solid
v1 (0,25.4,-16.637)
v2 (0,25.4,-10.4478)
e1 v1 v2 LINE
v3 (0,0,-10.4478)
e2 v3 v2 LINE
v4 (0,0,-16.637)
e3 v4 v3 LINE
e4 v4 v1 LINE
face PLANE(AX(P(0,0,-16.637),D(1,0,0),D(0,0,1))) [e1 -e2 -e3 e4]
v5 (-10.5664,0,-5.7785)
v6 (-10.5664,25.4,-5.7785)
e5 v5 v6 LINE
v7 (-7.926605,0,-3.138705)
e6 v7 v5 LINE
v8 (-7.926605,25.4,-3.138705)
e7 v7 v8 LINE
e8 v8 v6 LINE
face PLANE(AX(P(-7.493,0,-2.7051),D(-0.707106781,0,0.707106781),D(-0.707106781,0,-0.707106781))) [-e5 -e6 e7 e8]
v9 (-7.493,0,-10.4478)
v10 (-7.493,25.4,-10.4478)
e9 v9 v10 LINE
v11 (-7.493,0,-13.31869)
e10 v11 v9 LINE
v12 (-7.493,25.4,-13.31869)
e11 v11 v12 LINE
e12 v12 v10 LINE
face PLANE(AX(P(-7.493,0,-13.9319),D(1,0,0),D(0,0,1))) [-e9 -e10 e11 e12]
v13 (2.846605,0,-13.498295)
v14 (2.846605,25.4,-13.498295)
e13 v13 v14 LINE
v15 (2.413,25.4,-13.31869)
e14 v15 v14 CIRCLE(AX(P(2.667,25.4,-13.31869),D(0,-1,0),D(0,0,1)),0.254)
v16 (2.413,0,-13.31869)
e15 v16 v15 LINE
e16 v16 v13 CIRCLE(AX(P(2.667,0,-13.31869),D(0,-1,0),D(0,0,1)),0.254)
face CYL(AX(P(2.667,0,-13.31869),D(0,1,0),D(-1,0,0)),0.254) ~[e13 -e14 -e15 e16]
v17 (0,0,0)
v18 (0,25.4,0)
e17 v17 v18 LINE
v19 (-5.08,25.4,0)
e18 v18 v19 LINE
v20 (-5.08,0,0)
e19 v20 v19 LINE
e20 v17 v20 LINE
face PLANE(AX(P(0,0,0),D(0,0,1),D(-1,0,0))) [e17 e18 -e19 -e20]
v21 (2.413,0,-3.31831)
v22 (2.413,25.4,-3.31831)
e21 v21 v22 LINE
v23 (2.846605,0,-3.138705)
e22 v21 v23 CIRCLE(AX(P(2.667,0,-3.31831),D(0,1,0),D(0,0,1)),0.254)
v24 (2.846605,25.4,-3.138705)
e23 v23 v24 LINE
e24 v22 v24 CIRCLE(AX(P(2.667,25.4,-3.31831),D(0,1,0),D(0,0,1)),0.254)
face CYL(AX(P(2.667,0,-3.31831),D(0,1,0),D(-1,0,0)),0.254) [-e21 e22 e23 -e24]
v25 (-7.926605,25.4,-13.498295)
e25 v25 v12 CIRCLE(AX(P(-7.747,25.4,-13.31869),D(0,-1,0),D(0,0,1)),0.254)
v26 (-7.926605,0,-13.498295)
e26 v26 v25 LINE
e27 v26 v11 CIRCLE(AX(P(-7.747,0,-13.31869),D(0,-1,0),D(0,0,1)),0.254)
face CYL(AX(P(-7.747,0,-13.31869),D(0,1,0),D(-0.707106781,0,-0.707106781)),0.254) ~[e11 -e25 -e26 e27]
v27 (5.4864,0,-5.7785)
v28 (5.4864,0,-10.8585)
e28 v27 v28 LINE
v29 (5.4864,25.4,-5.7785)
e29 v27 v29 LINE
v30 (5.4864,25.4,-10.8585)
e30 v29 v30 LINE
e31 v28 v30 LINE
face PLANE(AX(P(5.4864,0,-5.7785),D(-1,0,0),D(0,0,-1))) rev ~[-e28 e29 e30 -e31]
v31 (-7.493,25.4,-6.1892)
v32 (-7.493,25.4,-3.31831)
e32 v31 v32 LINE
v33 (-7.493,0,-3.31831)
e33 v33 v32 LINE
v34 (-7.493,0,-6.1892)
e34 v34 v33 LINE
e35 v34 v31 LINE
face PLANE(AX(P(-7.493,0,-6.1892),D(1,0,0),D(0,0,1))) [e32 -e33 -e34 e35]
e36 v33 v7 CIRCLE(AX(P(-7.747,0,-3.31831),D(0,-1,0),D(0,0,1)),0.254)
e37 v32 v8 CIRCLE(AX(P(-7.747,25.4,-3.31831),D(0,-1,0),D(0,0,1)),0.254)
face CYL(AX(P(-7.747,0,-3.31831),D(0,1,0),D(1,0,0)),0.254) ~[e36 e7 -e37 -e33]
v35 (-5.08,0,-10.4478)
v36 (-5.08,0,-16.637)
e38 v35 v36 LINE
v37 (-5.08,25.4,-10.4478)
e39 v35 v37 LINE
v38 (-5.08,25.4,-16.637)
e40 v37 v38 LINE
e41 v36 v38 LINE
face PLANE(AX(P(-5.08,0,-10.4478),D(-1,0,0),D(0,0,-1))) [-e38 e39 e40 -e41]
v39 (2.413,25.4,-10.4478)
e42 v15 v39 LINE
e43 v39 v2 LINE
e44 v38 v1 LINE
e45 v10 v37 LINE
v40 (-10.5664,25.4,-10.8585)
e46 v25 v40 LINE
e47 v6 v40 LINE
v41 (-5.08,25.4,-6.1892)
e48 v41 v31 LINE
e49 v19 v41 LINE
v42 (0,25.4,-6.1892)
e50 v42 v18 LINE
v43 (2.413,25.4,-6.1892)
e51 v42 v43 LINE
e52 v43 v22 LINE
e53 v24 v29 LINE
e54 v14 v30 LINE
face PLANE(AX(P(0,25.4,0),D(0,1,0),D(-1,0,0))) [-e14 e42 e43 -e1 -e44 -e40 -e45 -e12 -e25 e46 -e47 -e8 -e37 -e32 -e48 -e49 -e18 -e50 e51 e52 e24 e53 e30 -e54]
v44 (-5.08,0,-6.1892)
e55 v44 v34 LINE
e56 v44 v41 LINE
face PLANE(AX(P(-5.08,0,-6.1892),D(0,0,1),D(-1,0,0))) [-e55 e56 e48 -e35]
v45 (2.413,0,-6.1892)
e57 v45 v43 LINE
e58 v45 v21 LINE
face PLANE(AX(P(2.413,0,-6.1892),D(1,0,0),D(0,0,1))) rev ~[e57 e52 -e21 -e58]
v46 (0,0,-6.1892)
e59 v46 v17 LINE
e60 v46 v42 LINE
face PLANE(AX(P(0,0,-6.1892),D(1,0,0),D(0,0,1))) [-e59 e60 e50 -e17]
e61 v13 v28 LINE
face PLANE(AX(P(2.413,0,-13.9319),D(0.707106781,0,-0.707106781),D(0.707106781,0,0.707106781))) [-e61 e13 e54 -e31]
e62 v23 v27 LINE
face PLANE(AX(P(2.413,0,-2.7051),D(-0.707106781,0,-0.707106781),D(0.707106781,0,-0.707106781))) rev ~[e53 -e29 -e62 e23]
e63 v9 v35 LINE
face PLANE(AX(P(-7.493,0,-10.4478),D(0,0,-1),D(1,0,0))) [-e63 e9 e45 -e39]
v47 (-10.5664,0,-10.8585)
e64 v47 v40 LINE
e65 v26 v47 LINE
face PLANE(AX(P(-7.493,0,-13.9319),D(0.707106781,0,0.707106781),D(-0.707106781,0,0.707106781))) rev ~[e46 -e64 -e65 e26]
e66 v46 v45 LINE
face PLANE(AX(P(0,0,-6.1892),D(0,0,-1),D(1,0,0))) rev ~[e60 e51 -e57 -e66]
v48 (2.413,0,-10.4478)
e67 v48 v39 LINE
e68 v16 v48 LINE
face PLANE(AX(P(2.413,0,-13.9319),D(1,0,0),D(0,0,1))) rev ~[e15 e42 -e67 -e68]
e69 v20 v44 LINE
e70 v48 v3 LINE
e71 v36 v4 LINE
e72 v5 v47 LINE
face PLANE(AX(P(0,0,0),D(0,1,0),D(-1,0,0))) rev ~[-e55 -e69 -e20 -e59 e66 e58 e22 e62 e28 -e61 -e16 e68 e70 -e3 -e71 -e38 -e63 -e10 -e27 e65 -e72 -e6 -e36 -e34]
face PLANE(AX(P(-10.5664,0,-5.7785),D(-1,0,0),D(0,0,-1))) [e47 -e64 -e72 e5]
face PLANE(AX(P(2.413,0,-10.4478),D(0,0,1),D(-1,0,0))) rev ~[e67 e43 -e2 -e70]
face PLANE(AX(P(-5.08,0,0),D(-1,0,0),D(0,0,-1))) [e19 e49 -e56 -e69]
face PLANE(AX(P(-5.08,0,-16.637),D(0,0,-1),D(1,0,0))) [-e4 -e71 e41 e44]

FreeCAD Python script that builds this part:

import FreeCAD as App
import Part
import Sketcher

V = App.Vector
Q = App.Units.Quantity


def edges_at(feature, points):
    """Names of the edges that pass closest to the given points."""
    edges = feature.Shape.Edges
    near = lambda p: min(range(len(edges)), key=lambda i: edges[i].distToShape(Part.Vertex(*p))[0])
    return sorted({f"Edge{near(p) + 1}" for p in points})


def add_polygon(sketch, points):
    """Adds a closed chain of lines whose ends are joined by coincident constraints."""
    first, n = sketch.GeometryCount, len(points)
    for a, b in zip(points, points[1:] + points[:1]):
        sketch.addGeometry(Part.LineSegment(App.Vector(*a, 0), App.Vector(*b, 0)), False)
    for i in range(n):
        sketch.addConstraint(Sketcher.Constraint("Coincident", first + i, 2, first + (i + 1) % n, 1))

doc = App.newDocument("Part")
params = doc.addObject("Spreadsheet::Sheet", "Params")
for row, (alias, value) in enumerate([
    ("sketch1_width", "0.2 in"),
    ("sketch1_width2", "0.095 in"),
    ("pad1_length", "1 in"),
    ("fillet_radius", "0.01 in"),
], start=1):
    params.set(f"A{row}", alias)
    params.set(f"B{row}", "=" + value)
    params.setAlias(f"B{row}", alias)

body = doc.addObject("PartDesign::Body", "Body")

sketch1 = body.newObject("Sketcher::SketchObject", "Sketch")
sketch1.AttachmentSupport = (doc.getObject("XZ_Plane"), [""])
sketch1.MapMode = "FlatFace"
add_polygon(sketch1, [(-5.1, 0), (0, 0), (0, -6.2), (2.4, -6.2), (2.4, -2.7), (5.5, -5.8), (5.5, -10.9), (2.4, -13.9), (2.4, -10.4), (0, -10.4), (0, -16.6), (-5.1, -16.6), (-5.1, -10.4), (-7.5, -10.4), (-7.5, -13.9), (-10.6, -10.9), (-10.6, -5.8), (-7.5, -2.7), (-7.5, -6.2), (-5.1, -6.2)])
sketch1.addConstraint(Sketcher.Constraint("Horizontal", 0))
sketch1.addConstraint(Sketcher.Constraint("Vertical", 1))
sketch1.addConstraint(Sketcher.Constraint("Horizontal", 2))
sketch1.addConstraint(Sketcher.Constraint("Vertical", 3))
sketch1.addConstraint(Sketcher.Constraint("Vertical", 5))
sketch1.addConstraint(Sketcher.Constraint("Vertical", 7))
sketch1.addConstraint(Sketcher.Constraint("Horizontal", 8))
sketch1.addConstraint(Sketcher.Constraint("Vertical", 9))
sketch1.addConstraint(Sketcher.Constraint("Horizontal", 10))
sketch1.addConstraint(Sketcher.Constraint("Vertical", 11))
sketch1.addConstraint(Sketcher.Constraint("Horizontal", 12))
sketch1.addConstraint(Sketcher.Constraint("Vertical", 13))
sketch1.addConstraint(Sketcher.Constraint("Vertical", 15))
sketch1.addConstraint(Sketcher.Constraint("Vertical", 17))
sketch1.addConstraint(Sketcher.Constraint("Horizontal", 18))
sketch1.addConstraint(Sketcher.Constraint("Vertical", 19))
sketch1.addConstraint(Sketcher.Constraint("Coincident", 0, 2, -1, 1))
sketch1.addConstraint(Sketcher.Constraint("PointOnObject", 8, 2, -2))
sketch1.addConstraint(Sketcher.Constraint("Perpendicular", 4, 6))
sketch1.addConstraint(Sketcher.Constraint("Perpendicular", 6, 14))
sketch1.addConstraint(Sketcher.Constraint("Perpendicular", 14, 16))
sketch1.addConstraint(Sketcher.Constraint("Horizontal", 8, 2, 11, 2))
sketch1.addConstraint(Sketcher.Constraint("Horizontal", 6, 2, 13, 2))
sketch1.addConstraint(Sketcher.Constraint("Horizontal", 5, 2, 14, 2))
sketch1.addConstraint(Sketcher.Constraint("Horizontal", 4, 2, 15, 2))
sketch1.addConstraint(Sketcher.Constraint("Horizontal", 3, 2, 16, 2))
sketch1.addConstraint(Sketcher.Constraint("Horizontal", 2, 2, 17, 2))
sketch1.addConstraint(Sketcher.Constraint("Vertical", 3, 2, 6, 2))
sketch1.addConstraint(Sketcher.Constraint("Vertical", 13, 2, 16, 2))
sketch1.addConstraint(Sketcher.Constraint("Vertical", 11, 2, 18, 2))
sketch1.addConstraint(Sketcher.Constraint("Equal", 8, 12))
sketch1.addConstraint(Sketcher.Constraint("Equal", 10, 5))
sketch1.addConstraint(Sketcher.Constraint("Equal", 3, 7))
sketch1.addConstraint(Sketcher.Constraint("Equal", 1, 9))
sketch1.addConstraint(Sketcher.Constraint("DistanceX", 0, 1, 0, 2, Q("0.2 in")))
sketch1.addConstraint(Sketcher.Constraint("DistanceX", 2, 1, 2, 2, Q("0.095 in")))
sketch1.addConstraint(Sketcher.Constraint("DistanceY", 9, 2, -1, 1, Q("0.655 in")))
sketch1.addConstraint(Sketcher.Constraint("DistanceX", 2, 2, 4, 2, Q("0.121 in")))
sketch1.addConstraint(Sketcher.Constraint("DistanceY", 1, 2, 1, 1, Q("6.1892 mm")))
sketch1.setExpression("Constraints[54]", "Params.sketch1_width")
sketch1.setExpression("Constraints[55]", "Params.sketch1_width2")
pad1 = body.newObject("PartDesign::Pad", "Pad")
pad1.Profile = sketch1
pad1.setExpression("Length", "Params.pad1_length")
pad1.Reversed = True
doc.recompute()

fillet = body.newObject("PartDesign::Fillet", "Fillet")
fillet.Base = (pad1, edges_at(pad1, [
    (2.413, 12.7, -13.932),
    (-7.493, 12.7, -13.932),
    (2.413, 12.7, -2.705),
    (-7.493, 12.7, -2.705),
]))
fillet.setExpression("Radius", "Params.fillet_radius")

doc.recompute()
